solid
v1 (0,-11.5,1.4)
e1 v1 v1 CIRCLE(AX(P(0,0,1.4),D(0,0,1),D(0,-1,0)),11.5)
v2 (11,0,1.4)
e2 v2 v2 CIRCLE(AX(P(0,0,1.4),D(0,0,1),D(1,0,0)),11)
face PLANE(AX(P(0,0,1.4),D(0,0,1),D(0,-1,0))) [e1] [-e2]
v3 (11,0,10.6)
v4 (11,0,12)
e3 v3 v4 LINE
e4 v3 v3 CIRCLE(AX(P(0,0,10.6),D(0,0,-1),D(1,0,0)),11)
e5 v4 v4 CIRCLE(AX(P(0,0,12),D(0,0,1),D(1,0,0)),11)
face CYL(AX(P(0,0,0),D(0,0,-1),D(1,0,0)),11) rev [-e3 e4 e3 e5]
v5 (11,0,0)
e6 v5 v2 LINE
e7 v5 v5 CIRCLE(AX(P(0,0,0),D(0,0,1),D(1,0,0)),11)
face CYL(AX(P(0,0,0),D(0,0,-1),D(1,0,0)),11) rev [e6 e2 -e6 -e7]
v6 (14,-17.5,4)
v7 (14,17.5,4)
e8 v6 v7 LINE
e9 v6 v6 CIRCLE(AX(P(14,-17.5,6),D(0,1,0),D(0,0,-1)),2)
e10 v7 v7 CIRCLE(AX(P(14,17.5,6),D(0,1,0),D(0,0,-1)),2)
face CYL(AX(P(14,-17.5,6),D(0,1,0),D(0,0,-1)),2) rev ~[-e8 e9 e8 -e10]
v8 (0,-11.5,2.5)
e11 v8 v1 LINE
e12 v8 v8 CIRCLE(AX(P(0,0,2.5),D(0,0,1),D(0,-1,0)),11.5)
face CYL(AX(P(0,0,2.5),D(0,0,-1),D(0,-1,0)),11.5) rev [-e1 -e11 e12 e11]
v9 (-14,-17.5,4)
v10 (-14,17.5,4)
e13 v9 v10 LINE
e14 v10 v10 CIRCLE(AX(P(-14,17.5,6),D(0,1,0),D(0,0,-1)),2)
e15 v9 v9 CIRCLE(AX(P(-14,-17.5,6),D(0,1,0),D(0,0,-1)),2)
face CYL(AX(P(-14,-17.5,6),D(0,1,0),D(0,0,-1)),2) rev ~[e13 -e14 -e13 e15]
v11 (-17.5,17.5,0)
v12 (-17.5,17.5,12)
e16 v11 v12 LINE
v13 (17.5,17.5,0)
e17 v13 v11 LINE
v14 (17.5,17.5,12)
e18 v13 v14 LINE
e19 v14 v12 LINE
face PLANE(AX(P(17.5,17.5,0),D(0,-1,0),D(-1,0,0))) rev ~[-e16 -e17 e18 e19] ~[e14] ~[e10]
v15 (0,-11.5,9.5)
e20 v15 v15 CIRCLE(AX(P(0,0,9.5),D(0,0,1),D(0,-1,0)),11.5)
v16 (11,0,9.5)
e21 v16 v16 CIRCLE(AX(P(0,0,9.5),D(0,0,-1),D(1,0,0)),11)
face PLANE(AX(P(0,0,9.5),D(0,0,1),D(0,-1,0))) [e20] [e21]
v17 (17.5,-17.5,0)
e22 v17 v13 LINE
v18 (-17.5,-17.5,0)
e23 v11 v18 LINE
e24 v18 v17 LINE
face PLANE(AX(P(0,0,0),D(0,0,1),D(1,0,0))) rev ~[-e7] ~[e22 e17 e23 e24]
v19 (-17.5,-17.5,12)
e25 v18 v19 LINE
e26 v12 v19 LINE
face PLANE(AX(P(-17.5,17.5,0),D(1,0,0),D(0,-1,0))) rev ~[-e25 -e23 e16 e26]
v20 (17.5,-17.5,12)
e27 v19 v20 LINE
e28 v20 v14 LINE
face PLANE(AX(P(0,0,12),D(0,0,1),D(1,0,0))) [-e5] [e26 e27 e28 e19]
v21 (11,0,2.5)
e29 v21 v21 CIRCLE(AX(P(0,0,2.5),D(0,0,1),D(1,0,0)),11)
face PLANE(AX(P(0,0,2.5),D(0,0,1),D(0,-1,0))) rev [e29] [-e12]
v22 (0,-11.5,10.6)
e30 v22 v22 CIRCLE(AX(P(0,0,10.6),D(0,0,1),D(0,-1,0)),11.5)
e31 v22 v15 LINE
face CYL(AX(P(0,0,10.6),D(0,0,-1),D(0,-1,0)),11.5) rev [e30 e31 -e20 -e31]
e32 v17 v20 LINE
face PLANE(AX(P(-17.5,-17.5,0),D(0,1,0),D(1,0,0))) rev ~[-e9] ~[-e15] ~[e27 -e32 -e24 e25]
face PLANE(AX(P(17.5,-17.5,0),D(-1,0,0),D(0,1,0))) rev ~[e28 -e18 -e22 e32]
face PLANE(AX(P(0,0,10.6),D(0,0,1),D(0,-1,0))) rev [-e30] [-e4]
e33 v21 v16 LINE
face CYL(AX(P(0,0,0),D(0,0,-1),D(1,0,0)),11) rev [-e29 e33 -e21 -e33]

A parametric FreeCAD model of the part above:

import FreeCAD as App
import Part
import Sketcher
from FreeCAD import Vector
Q = App.Units.Quantity


def add_polygon(sketch, points):
    """Adds a closed chain of lines whose ends are joined by coincident constraints."""
    first, n = sketch.GeometryCount, len(points)
    for a, b in zip(points, points[1:] + points[:1]):
        sketch.addGeometry(Part.LineSegment(App.Vector(*a, 0), App.Vector(*b, 0)), False)
    for i in range(n):
        sketch.addConstraint(Sketcher.Constraint("Coincident", first + i, 2, first + (i + 1) % n, 1))

doc = App.newDocument("Part")
body = doc.addObject("PartDesign::Body", "Body")

# Sketch on XY plane
sketch1 = body.newObject("Sketcher::SketchObject", "Sketch")
sketch1.AttachmentSupport = (doc.getObject("XY_Plane"), [""])
sketch1.MapMode = "FlatFace"
add_polygon(sketch1, [(-17.5, 17.5), (-17.5, -17.5), (17.5, -17.5), (17.5, 17.5)])  # lines 0-3
sketch1.addGeometry(Part.Circle(Vector(0, 0, 0), Vector(0, 0, 1), 11), False)  # 4
sketch1.addConstraint(Sketcher.Constraint("Vertical", 0))
sketch1.addConstraint(Sketcher.Constraint("Horizontal", 1))
sketch1.addConstraint(Sketcher.Constraint("Vertical", 2))
sketch1.addConstraint(Sketcher.Constraint("Horizontal", 3))
sketch1.addConstraint(Sketcher.Constraint("Coincident", 4, 3, -1, 1))
sketch1.addConstraint(Sketcher.Constraint("Symmetric", 0, 2, 2, 2, -1, 1))
sketch1.addConstraint(Sketcher.Constraint("Equal", 3, 0))
sketch1.addConstraint(Sketcher.Constraint("Diameter", 4, Q("22 mm")))
sketch1.addConstraint(Sketcher.Constraint("DistanceX", 1, 1, 1, 2, Q("35 mm")))
pad1 = body.newObject("PartDesign::Pad", "Pad")
pad1.Profile = sketch1
pad1.Length = 12

# Sketch on YZ plane
sketch2 = body.newObject("Sketcher::SketchObject", "Sketch001")
sketch2.AttachmentSupport = (doc.getObject("YZ_Plane"), [""])
sketch2.MapMode = "FlatFace"
add_polygon(sketch2, [(-11.5, 1.4), (-11, 1.4), (-11, 2.5), (-11.5, 2.5)])  # lines 0-3
add_polygon(sketch2, [(-11.5, 9.5), (-11, 9.5), (-11, 10.6), (-11.5, 10.6)])  # lines 4-7
sketch2.addConstraint(Sketcher.Constraint("Horizontal", 0))
sketch2.addConstraint(Sketcher.Constraint("Vertical", 1))
sketch2.addConstraint(Sketcher.Constraint("Horizontal", 2))
sketch2.addConstraint(Sketcher.Constraint("Vertical", 3))
sketch2.addConstraint(Sketcher.Constraint("Horizontal", 4))
sketch2.addConstraint(Sketcher.Constraint("Vertical", 5))
sketch2.addConstraint(Sketcher.Constraint("Horizontal", 6))
sketch2.addConstraint(Sketcher.Constraint("Vertical", 7))
sketch2.addConstraint(Sketcher.Constraint("Vertical", 1, 2, 4, 2))
sketch2.addConstraint(Sketcher.Constraint("Vertical", 3, 2, 6, 2))
sketch2.addConstraint(Sketcher.Constraint("Equal", 3, 5))
sketch2.addConstraint(Sketcher.Constraint("DistanceX", 0, 1, 0, 2, Q("0.5 mm")))
sketch2.addConstraint(Sketcher.Constraint("DistanceY", 1, 1, 1, 2, Q("1.1 mm")))
sketch2.addConstraint(Sketcher.Constraint("DistanceY", 1, 2, 4, 2, Q("7 mm")))
sketch2.addConstraint(Sketcher.Constraint("DistanceX", 0, 2, -1, 1, Q("11 mm")))
sketch2.addConstraint(Sketcher.Constraint("DistanceY", -1, 1, 0, 2, Q("1.4 mm")))
groove = body.newObject("PartDesign::Groove", "Groove")
groove.Profile = sketch2
groove.ReferenceAxis = (sketch2, ["V_Axis"])
groove.Angle = 360

# Sketch on XZ plane
sketch3 = body.newObject("Sketcher::SketchObject", "Sketch002")
sketch3.AttachmentSupport = (doc.getObject("XZ_Plane"), [""])
sketch3.MapMode = "FlatFace"
sketch3.AttachmentOffset = App.Placement(Vector(0, 0, 17.5), App.Rotation())
sketch3.addGeometry(Part.Circle(Vector(14, 6, 0), Vector(0, 0, 1), 2), False)
sketch3.addGeometry(Part.Circle(Vector(-14, 6, 0), Vector(0, 0, 1), 2), False)
sketch3.addConstraint(Sketcher.Constraint("Equal", 0, 1))
sketch3.addConstraint(Sketcher.Constraint("Symmetric", 0, 3, 1, 3, -2))
sketch3.addConstraint(Sketcher.Constraint("Diameter", 0, Q("4 mm")))
sketch3.addConstraint(Sketcher.Constraint("DistanceX", -1, 1, 0, 3, Q("14 mm")))
sketch3.addConstraint(Sketcher.Constraint("DistanceY", -1, 1, 0, 3, Q("6 mm")))
doc.recompute()
hole = body.newObject("PartDesign::Hole", "Hole")
hole.Profile = sketch3
hole.ThreadType = "None"
hole.Diameter = 4
hole.DepthType = "ThroughAll"

doc.recompute()
